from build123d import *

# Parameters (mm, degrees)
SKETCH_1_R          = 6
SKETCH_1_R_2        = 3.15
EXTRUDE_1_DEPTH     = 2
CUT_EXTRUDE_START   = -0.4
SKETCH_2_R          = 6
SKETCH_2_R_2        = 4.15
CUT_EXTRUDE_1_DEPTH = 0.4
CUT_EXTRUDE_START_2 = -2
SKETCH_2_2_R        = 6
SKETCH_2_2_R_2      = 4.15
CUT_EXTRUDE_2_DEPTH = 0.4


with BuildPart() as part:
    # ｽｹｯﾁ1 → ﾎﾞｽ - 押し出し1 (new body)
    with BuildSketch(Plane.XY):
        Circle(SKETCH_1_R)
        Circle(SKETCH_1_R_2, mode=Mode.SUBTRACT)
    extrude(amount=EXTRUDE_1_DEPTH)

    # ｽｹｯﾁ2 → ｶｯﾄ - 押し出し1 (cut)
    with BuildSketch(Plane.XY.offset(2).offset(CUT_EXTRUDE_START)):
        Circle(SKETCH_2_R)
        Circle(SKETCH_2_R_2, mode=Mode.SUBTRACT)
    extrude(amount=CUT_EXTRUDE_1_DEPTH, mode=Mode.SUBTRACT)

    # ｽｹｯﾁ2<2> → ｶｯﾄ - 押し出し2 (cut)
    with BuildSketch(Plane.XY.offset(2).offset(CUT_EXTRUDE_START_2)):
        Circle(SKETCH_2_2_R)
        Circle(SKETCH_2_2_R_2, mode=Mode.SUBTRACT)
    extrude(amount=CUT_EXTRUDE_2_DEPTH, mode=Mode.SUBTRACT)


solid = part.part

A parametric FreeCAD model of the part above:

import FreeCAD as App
import Part
import Sketcher

doc = App.newDocument("Part")
body = doc.addObject("PartDesign::Body", "Body")

# Sketch on XY plane
sketch1 = body.newObject("Sketcher::SketchObject", "Sketch")
sketch1.AttachmentSupport = (doc.getObject("XY_Plane"), [""])
sketch1.MapMode = "FlatFace"
sketch1.addGeometry(Part.Circle(App.Vector(0, 0, 0), App.Vector(0, 0, 1), 6), False)
sketch1.addGeometry(Part.Circle(App.Vector(0, 0, 0), App.Vector(0, 0, 1), 3.1), False)
sketch1.addConstraint(Sketcher.Constraint("Coincident", 0, 3, -1, 1))
sketch1.addConstraint(Sketcher.Constraint("Coincident", 1, 3, -1, 1))
sketch1.addConstraint(Sketcher.Constraint("Diameter", 0, 12.0))
sketch1.addConstraint(Sketcher.Constraint("Diameter", 1, 6.3))
pad1 = body.newObject("PartDesign::Pad", "Pad")
pad1.Profile = sketch1
pad1.Length = 2

# Sketch on XY plane
sketch2 = body.newObject("Sketcher::SketchObject", "Sketch001")
sketch2.AttachmentSupport = (doc.getObject("XY_Plane"), [""])
sketch2.MapMode = "FlatFace"
sketch2.AttachmentOffset = App.Placement(App.Vector(0, 0, 1.6), App.Rotation())
sketch2.addGeometry(Part.Circle(App.Vector(0, 0, 0), App.Vector(0, 0, 1), 6), False)
sketch2.addGeometry(Part.Circle(App.Vector(0, 0, 0), App.Vector(0, 0, 1), 4.2), False)
sketch2.addConstraint(Sketcher.Constraint("Coincident", 0, 3, -1, 1))
sketch2.addConstraint(Sketcher.Constraint("Coincident", 1, 3, -1, 1))
sketch2.addConstraint(Sketcher.Constraint("Diameter", 0, 12.0))
sketch2.addConstraint(Sketcher.Constraint("Diameter", 1, 8.3))
pocket1 = body.newObject("PartDesign::Pocket", "Pocket")
pocket1.Profile = sketch2
pocket1.Length = 0.4
pocket1.Reversed = True

# Sketch on XY plane
sketch3 = body.newObject("Sketcher::SketchObject", "Sketch002")
sketch3.AttachmentSupport = (doc.getObject("XY_Plane"), [""])
sketch3.MapMode = "FlatFace"
sketch3.addGeometry(Part.Circle(App.Vector(0, 0, 0), App.Vector(0, 0, 1), 6), False)
sketch3.addGeometry(Part.Circle(App.Vector(0, 0, 0), App.Vector(0, 0, 1), 4.2), False)
sketch3.addConstraint(Sketcher.Constraint("Coincident", 0, 3, -1, 1))
sketch3.addConstraint(Sketcher.Constraint("Coincident", 1, 3, -1, 1))
sketch3.addConstraint(Sketcher.Constraint("Diameter", 0, 12.0))
sketch3.addConstraint(Sketcher.Constraint("Diameter", 1, 8.3))
pocket2 = body.newObject("PartDesign::Pocket", "Pocket001")
pocket2.Profile = sketch3
pocket2.Length = 0.4
pocket2.Reversed = True

doc.recompute()
